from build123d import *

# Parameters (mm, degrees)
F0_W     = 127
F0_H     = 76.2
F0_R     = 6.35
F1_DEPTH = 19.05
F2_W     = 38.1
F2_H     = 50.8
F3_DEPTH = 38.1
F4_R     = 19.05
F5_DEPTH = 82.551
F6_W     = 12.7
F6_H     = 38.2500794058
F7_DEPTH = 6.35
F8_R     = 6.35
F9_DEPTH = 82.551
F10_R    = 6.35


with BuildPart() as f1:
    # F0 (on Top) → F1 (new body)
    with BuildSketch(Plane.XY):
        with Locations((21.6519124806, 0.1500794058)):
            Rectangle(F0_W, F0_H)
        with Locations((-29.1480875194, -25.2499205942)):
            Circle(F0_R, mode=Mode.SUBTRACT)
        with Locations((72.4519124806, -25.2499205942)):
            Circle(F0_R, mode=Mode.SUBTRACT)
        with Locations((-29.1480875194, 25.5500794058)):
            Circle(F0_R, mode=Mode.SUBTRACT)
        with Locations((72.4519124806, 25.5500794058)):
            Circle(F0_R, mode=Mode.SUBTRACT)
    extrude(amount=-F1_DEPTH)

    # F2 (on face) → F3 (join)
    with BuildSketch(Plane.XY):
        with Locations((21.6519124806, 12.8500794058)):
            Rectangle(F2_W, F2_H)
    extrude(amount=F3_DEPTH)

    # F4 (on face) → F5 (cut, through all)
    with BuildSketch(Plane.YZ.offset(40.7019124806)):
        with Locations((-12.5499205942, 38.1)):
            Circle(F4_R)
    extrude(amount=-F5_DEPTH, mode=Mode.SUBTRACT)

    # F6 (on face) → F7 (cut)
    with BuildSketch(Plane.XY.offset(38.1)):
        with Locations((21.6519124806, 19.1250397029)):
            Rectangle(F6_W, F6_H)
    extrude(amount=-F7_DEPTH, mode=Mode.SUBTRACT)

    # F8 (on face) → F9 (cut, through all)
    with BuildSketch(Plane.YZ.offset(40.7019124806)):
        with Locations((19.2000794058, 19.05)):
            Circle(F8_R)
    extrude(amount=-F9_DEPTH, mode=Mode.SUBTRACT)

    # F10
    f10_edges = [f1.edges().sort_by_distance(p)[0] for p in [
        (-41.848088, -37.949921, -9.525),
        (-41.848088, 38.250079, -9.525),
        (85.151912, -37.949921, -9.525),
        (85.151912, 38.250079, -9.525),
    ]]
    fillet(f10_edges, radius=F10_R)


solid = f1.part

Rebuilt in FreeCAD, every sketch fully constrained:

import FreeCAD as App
import Part
import Sketcher

V = App.Vector
Q = App.Units.Quantity


def edges_at(feature, points):
    """Names of the edges that pass closest to the given points."""
    edges = feature.Shape.Edges
    near = lambda p: min(range(len(edges)), key=lambda i: edges[i].distToShape(Part.Vertex(*p))[0])
    return sorted({f"Edge{near(p) + 1}" for p in points})


def add_polygon(sketch, points):
    """Adds a closed chain of lines whose ends are joined by coincident constraints."""
    first, n = sketch.GeometryCount, len(points)
    for a, b in zip(points, points[1:] + points[:1]):
        sketch.addGeometry(Part.LineSegment(App.Vector(*a, 0), App.Vector(*b, 0)), False)
    for i in range(n):
        sketch.addConstraint(Sketcher.Constraint("Coincident", first + i, 2, first + (i + 1) % n, 1))

doc = App.newDocument("Part")
body = doc.addObject("PartDesign::Body", "Body")

# Sketch on XY plane
sketch1 = body.newObject("Sketcher::SketchObject", "Sketch")
sketch1.AttachmentSupport = (doc.getObject("XY_Plane"), [""])
sketch1.MapMode = "FlatFace"
add_polygon(sketch1, [(-42, 38), (-42, -38), (85, -38), (85, 38)])  # lines 0-3
sketch1.addGeometry(Part.Circle(V(-29, -25, 0), V(0, 0, 1), 6), False)  # 4
sketch1.addGeometry(Part.Circle(V(72, -25, 0), V(0, 0, 1), 6), False)  # 5
sketch1.addGeometry(Part.Circle(V(-29, 26, 0), V(0, 0, 1), 6), False)  # 6
sketch1.addGeometry(Part.Circle(V(72, 26, 0), V(0, 0, 1), 6), False)  # 7
sketch1.addConstraint([
    Sketcher.Constraint("Vertical", 0),
    Sketcher.Constraint("Horizontal", 1),
    Sketcher.Constraint("Vertical", 2),
    Sketcher.Constraint("Horizontal", 3),
    Sketcher.Constraint("Equal", 4, 5),
    Sketcher.Constraint("Equal", 5, 6),
    Sketcher.Constraint("Equal", 6, 7),
    Sketcher.Constraint("Horizontal", 4, 3, 5, 3),
    Sketcher.Constraint("Horizontal", 6, 3, 7, 3),
    Sketcher.Constraint("Vertical", 4, 3, 6, 3),
    Sketcher.Constraint("Vertical", 5, 3, 7, 3),
    Sketcher.Constraint("Diameter", 4, Q("0.5 in")),
    Sketcher.Constraint("DistanceX", 1, 1, 1, 2, Q("5 in")),
    Sketcher.Constraint("DistanceY", 0, 2, 0, 1, Q("3 in")),
    Sketcher.Constraint("DistanceX", 4, 3, 5, 3, Q("4 in")),
    Sketcher.Constraint("DistanceY", 4, 3, 6, 3, Q("2 in")),
    Sketcher.Constraint("DistanceX", 0, 2, 4, 3, Q("0.5 in")),
    Sketcher.Constraint("DistanceY", 0, 2, 4, 3, Q("0.5 in")),
    Sketcher.Constraint("DistanceY", 4, 3, -1, 1, 25.249921),
    Sketcher.Constraint("DistanceX", 4, 3, -1, 1, 29.148088),
])
pad1 = body.newObject("PartDesign::Pad", "Pad")
pad1.Profile = sketch1
pad1.Length = Q("0.75 in")
pad1.Reversed = True

# Sketch on XY plane
sketch2 = body.newObject("Sketcher::SketchObject", "Sketch001")
sketch2.AttachmentSupport = (doc.getObject("XY_Plane"), [""])
sketch2.MapMode = "FlatFace"
add_polygon(sketch2, [(3, 38), (3, -13), (41, -13), (41, 38)])  # lines 0-3
sketch2.addConstraint([
    Sketcher.Constraint("Vertical", 0),
    Sketcher.Constraint("Horizontal", 1),
    Sketcher.Constraint("Vertical", 2),
    Sketcher.Constraint("Horizontal", 3),
    Sketcher.Constraint("DistanceY", 0, 2, 0, 1, Q("2 in")),
    Sketcher.Constraint("DistanceX", 1, 1, 1, 2, Q("1.5 in")),
    Sketcher.Constraint("DistanceY", 0, 2, -1, 1, 12.549921),
    Sketcher.Constraint("DistanceX", -1, 1, 0, 2, 2.601912),
])
pad2 = body.newObject("PartDesign::Pad", "Pad001")
pad2.Profile = sketch2
pad2.Length = Q("1.5 in")

# Sketch on YZ plane
sketch3 = body.newObject("Sketcher::SketchObject", "Sketch002")
sketch3.AttachmentSupport = (doc.getObject("YZ_Plane"), [""])
sketch3.MapMode = "FlatFace"
sketch3.AttachmentOffset = App.Placement(V(0, 0, 40.701912), App.Rotation())
sketch3.addGeometry(Part.Circle(V(-13, 38, 0), V(0, 0, 1), 19), False)
sketch3.addConstraint([
    Sketcher.Constraint("Diameter", 0, Q("1.5 in")),
    Sketcher.Constraint("DistanceY", -1, 1, 0, 3, Q("1.5 in")),
    Sketcher.Constraint("DistanceX", 0, 3, -1, 1, 12.549921),
])
pocket1 = body.newObject("PartDesign::Pocket", "Pocket")
pocket1.Profile = sketch3
pocket1.Type = "ThroughAll"

# Sketch on XY plane
sketch4 = body.newObject("Sketcher::SketchObject", "Sketch003")
sketch4.AttachmentSupport = (doc.getObject("XY_Plane"), [""])
sketch4.MapMode = "FlatFace"
sketch4.AttachmentOffset = App.Placement(V(0, 0, 1.5 * 25.4), App.Rotation())
add_polygon(sketch4, [(15, 38), (15, 0), (28, 0), (28, 38)])  # lines 0-3
sketch4.addConstraint([
    Sketcher.Constraint("Vertical", 0),
    Sketcher.Constraint("Horizontal", 1),
    Sketcher.Constraint("Vertical", 2),
    Sketcher.Constraint("Horizontal", 3),
    Sketcher.Constraint("PointOnObject", 0, 2, -1),
    Sketcher.Constraint("DistanceX", 1, 1, 1, 2, Q("0.5 in")),
    Sketcher.Constraint("DistanceY", 0, 2, 0, 1, 38.250079),
    Sketcher.Constraint("DistanceX", -1, 1, 0, 2, 15.301912),
])
pocket2 = body.newObject("PartDesign::Pocket", "Pocket001")
pocket2.Profile = sketch4
pocket2.Length = Q("0.25 in")

# Sketch on YZ plane
sketch5 = body.newObject("Sketcher::SketchObject", "Sketch004")
sketch5.AttachmentSupport = (doc.getObject("YZ_Plane"), [""])
sketch5.MapMode = "FlatFace"
sketch5.AttachmentOffset = App.Placement(V(0, 0, 40.701912), App.Rotation())
sketch5.addGeometry(Part.Circle(V(19, 19, 0), V(0, 0, 1), 6), False)
sketch5.addConstraint([
    Sketcher.Constraint("Diameter", 0, Q("0.5 in")),
    Sketcher.Constraint("DistanceY", -1, 1, 0, 3, Q("0.75 in")),
    Sketcher.Constraint("DistanceX", -1, 1, 0, 3, 19.200079),
])
pocket3 = body.newObject("PartDesign::Pocket", "Pocket002")
pocket3.Profile = sketch5
pocket3.Type = "ThroughAll"
doc.recompute()

fillet = body.newObject("PartDesign::Fillet", "Fillet")
fillet.Base = (pocket3, edges_at(pocket3, [
    (-41.848, -37.95, -9.525),
    (-41.848, 38.25, -9.525),
    (85.152, -37.95, -9.525),
    (85.152, 38.25, -9.525),
]))
fillet.Radius = Q("0.25 in")

doc.recompute()
